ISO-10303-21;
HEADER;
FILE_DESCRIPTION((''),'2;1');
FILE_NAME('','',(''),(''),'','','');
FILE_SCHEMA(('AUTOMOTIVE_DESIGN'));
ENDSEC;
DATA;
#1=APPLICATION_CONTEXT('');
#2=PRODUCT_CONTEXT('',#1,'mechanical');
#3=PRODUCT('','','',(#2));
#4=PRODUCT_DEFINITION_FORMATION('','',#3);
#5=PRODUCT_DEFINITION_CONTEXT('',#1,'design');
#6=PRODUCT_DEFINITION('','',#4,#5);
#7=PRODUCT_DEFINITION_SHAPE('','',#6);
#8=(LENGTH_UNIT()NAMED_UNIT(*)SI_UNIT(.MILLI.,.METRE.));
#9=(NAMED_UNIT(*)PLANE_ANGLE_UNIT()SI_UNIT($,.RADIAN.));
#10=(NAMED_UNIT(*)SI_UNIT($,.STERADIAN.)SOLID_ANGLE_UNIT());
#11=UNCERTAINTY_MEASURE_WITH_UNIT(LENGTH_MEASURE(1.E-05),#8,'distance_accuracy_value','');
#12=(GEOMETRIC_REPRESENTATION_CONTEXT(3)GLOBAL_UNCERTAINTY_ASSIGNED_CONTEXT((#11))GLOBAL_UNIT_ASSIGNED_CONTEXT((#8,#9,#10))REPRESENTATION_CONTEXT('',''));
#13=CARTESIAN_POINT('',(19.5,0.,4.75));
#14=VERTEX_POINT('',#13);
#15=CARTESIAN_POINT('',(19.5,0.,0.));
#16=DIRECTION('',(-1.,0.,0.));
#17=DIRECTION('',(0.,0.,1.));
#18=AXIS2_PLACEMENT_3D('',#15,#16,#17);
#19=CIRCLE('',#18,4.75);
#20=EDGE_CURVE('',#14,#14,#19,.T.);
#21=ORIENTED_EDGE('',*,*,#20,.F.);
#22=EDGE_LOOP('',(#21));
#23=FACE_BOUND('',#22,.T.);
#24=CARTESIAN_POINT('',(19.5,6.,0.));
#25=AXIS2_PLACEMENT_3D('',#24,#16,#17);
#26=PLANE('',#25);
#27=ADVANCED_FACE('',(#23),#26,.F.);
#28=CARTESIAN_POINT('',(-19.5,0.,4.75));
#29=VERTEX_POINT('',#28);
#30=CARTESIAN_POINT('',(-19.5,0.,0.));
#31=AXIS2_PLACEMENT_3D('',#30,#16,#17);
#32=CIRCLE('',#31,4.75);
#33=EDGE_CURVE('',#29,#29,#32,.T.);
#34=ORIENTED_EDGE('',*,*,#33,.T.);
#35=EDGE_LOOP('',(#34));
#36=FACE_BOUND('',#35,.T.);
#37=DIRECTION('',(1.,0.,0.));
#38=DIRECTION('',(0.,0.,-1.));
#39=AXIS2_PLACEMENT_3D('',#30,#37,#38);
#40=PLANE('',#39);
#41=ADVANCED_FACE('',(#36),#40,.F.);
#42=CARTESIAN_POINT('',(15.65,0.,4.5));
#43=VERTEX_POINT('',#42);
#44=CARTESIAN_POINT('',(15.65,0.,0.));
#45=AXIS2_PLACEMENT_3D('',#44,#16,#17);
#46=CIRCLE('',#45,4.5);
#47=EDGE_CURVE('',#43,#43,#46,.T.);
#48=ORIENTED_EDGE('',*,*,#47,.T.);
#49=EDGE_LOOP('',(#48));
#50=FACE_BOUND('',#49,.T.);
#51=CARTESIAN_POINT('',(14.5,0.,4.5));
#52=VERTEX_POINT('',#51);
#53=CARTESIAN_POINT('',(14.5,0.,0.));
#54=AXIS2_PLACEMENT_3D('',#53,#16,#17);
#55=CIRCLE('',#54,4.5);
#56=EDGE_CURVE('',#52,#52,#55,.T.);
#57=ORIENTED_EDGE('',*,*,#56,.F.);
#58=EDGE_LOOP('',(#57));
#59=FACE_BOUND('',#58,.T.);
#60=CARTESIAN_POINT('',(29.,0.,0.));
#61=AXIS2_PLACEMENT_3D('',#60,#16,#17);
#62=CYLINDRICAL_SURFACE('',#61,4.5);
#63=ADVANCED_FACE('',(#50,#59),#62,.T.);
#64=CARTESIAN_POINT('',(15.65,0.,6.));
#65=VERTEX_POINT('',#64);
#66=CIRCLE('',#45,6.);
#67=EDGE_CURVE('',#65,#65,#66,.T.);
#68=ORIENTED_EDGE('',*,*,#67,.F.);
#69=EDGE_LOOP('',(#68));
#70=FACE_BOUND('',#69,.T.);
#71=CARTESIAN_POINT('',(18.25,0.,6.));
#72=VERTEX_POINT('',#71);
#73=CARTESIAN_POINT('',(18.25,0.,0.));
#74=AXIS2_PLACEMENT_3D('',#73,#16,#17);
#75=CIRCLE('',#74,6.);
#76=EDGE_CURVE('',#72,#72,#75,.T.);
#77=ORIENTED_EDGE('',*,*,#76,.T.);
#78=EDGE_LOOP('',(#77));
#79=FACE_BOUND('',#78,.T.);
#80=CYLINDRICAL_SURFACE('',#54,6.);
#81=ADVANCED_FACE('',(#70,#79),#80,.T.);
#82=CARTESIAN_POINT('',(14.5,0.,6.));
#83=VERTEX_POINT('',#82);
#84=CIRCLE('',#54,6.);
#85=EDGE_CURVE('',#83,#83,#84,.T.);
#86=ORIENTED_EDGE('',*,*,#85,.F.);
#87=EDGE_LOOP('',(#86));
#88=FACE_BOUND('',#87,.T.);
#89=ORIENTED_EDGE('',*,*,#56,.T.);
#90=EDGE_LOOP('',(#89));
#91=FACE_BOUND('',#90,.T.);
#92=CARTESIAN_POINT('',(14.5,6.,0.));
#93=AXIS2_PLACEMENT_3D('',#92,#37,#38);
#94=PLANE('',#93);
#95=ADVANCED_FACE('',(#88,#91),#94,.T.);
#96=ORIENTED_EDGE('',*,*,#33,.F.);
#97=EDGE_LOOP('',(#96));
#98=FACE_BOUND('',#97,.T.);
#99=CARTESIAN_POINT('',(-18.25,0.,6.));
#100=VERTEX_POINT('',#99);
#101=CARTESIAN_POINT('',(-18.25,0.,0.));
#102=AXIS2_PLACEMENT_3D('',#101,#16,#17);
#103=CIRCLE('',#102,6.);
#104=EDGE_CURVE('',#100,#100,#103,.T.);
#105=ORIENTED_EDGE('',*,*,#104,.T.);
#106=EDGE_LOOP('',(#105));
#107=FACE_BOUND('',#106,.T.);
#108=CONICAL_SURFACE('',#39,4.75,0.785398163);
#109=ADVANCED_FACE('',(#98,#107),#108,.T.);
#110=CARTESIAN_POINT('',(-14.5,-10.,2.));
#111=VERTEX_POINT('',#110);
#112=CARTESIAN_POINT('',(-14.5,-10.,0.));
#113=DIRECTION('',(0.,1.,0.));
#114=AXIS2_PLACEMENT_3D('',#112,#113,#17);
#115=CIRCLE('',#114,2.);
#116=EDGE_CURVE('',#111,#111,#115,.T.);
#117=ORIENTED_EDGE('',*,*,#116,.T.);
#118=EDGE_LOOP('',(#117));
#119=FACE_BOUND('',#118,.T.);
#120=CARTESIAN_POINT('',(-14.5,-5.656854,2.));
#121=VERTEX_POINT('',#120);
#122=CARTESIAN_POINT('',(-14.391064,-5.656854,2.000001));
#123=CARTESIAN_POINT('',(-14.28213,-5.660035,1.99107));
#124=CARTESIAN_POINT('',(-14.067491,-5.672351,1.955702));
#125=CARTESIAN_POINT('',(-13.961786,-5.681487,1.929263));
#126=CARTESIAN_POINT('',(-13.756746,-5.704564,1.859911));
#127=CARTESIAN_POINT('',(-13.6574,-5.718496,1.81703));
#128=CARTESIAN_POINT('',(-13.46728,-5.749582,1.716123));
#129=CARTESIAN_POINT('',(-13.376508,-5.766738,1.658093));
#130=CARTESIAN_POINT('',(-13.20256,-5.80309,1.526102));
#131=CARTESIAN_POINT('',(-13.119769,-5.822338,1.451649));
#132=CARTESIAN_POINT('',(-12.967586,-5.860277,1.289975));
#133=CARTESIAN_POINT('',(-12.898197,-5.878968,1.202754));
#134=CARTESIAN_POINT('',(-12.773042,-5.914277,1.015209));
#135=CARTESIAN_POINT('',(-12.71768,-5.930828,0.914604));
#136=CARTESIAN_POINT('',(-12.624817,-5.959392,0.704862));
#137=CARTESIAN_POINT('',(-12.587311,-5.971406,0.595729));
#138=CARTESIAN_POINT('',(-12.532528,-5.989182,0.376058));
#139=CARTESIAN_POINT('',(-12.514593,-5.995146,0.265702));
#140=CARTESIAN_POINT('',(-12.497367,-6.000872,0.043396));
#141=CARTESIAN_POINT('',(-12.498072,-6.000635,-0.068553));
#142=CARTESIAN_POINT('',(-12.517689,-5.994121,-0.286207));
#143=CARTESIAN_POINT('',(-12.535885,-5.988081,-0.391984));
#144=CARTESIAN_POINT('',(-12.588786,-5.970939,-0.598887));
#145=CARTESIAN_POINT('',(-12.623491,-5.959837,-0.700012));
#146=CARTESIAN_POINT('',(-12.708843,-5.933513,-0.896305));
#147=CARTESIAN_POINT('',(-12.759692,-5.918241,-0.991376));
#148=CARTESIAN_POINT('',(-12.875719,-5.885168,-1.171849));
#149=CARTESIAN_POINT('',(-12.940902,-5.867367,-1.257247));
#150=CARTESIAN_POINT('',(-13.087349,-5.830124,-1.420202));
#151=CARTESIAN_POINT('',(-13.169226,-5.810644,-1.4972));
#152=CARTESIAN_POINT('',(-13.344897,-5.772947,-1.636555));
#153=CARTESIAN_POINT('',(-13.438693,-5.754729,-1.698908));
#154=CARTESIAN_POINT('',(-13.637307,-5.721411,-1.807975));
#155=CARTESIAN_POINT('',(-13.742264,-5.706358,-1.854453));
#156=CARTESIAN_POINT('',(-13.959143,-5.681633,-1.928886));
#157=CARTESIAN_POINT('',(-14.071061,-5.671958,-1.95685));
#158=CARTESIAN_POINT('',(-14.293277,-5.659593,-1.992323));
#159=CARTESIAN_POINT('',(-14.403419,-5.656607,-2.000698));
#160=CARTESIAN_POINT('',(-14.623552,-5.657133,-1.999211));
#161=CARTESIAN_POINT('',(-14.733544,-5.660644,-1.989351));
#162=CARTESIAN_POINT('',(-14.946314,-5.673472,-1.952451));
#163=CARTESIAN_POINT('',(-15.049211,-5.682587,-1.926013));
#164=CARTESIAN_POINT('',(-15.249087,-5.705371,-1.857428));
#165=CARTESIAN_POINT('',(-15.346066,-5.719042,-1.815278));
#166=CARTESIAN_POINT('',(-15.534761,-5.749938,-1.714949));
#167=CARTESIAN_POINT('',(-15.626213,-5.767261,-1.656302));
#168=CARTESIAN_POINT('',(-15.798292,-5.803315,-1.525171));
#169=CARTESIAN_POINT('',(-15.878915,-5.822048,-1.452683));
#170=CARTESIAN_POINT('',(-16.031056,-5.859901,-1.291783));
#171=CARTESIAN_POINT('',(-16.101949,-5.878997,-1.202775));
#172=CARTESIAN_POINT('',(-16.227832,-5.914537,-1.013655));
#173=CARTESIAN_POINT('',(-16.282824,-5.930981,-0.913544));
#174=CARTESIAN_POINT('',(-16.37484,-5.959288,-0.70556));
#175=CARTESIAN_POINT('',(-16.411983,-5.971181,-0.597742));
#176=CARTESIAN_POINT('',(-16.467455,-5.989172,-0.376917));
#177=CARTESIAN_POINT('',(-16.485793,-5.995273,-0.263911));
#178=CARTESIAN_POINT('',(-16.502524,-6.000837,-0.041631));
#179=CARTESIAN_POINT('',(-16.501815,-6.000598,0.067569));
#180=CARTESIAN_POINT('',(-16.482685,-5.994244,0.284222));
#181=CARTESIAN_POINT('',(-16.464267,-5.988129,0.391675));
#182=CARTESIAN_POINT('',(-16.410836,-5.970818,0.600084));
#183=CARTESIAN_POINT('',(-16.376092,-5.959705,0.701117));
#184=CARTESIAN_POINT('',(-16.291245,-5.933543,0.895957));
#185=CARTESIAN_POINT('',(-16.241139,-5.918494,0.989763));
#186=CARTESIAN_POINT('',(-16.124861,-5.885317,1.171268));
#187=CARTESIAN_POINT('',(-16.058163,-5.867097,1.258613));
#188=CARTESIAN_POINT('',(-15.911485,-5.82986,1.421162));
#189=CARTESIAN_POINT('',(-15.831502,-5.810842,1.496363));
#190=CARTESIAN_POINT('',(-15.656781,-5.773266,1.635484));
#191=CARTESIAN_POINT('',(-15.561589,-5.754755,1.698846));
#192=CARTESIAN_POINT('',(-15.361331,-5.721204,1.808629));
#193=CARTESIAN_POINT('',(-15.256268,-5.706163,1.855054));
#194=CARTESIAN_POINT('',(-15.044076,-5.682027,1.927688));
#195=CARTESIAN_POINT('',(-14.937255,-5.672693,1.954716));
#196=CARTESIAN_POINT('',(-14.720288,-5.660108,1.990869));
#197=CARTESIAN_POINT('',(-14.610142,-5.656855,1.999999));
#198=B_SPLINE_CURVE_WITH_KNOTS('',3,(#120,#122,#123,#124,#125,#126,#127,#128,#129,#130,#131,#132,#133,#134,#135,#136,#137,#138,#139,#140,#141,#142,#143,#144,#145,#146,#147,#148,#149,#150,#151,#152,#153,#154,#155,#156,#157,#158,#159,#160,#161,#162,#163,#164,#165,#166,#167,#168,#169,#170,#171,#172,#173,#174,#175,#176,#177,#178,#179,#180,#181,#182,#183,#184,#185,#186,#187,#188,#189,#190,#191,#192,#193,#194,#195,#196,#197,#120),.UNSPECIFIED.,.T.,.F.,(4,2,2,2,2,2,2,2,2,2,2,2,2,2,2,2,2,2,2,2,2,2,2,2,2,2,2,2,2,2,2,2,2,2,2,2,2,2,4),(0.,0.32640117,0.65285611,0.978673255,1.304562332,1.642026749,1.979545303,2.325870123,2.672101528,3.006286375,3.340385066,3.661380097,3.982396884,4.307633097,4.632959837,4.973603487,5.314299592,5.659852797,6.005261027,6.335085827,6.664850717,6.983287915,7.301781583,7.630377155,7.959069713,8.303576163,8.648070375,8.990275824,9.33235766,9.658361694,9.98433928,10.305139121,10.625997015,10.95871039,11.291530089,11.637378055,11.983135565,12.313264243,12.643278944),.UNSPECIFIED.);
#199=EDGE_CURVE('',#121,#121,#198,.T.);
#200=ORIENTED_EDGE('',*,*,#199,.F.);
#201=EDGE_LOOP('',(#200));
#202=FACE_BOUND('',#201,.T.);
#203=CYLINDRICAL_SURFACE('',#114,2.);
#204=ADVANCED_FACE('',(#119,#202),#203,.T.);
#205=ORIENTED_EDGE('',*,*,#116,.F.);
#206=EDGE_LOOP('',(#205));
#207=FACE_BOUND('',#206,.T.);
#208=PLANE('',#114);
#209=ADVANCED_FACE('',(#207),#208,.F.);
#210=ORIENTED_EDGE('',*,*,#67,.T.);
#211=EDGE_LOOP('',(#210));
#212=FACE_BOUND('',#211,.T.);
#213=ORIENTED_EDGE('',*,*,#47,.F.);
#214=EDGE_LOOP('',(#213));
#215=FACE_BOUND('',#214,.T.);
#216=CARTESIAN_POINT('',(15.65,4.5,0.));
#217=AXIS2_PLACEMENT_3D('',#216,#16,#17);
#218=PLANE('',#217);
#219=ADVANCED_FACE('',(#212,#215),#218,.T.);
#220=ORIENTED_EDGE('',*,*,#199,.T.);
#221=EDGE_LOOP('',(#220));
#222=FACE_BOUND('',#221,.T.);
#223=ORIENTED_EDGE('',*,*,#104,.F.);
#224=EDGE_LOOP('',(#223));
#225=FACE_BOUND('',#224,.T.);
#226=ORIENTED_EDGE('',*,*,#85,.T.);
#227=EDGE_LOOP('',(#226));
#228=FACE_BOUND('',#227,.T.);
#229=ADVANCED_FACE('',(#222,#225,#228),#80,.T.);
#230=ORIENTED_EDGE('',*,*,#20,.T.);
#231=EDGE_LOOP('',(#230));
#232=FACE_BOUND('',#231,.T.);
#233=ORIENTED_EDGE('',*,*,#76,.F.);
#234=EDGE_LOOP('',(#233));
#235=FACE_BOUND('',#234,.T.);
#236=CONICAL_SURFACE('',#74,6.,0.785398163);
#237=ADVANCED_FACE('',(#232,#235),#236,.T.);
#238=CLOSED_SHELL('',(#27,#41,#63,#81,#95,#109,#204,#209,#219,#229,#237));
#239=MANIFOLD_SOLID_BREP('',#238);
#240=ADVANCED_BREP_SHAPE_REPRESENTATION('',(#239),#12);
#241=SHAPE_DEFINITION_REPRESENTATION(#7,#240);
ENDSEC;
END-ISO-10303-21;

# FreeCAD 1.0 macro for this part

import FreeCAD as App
import Part
import Sketcher

V = App.Vector

doc = App.newDocument("Part")
body = doc.addObject("PartDesign::Body", "Body")

# Sketch on XY plane
sketch1 = doc.addObject("Sketcher::SketchObject", "Sketch")
body.addObject(sketch1)
sketch1.AttachmentSupport = (doc.XY_Plane, [""])
sketch1.MapMode = "FlatFace"
sketch1.addGeometry([
    Part.LineSegment(V(-19.5, 6, 0), V(-19.5, 0, 0)),
    Part.LineSegment(V(-19.5, 0, 0), V(14.5, 0, 0)),
    Part.LineSegment(V(14.5, 0, 0), V(14.5, 6, 0)),
    Part.LineSegment(V(14.5, 6, 0), V(-19.5, 6, 0)),
], False)
sketch1.addConstraint([
    Sketcher.Constraint("Coincident", 0, 2, 1, 1),
    Sketcher.Constraint("Coincident", 1, 2, 2, 1),
    Sketcher.Constraint("Coincident", 2, 2, 3, 1),
    Sketcher.Constraint("Coincident", 3, 2, 0, 1),
    Sketcher.Constraint("Vertical", 0),
    Sketcher.Constraint("Horizontal", 1),
    Sketcher.Constraint("Vertical", 2),
    Sketcher.Constraint("Horizontal", 3),
    Sketcher.Constraint("PointOnObject", 0, 2, -1),
    Sketcher.Constraint("DistanceX", 1, 1, 1, 2, 34.0),
    Sketcher.Constraint("DistanceY", 0, 2, 0, 1, 6.0),
    Sketcher.Constraint("DistanceX", 0, 2, -1, 1, 19.5),
])
revolution = doc.addObject("PartDesign::Revolution", "Revolution")
body.addObject(revolution)
revolution.Profile = sketch1
revolution.ReferenceAxis = (sketch1, ["H_Axis"])
revolution.Angle = 360

# Sketch on XY plane
sketch2 = doc.addObject("Sketcher::SketchObject", "Sketch001")
body.addObject(sketch2)
sketch2.AttachmentSupport = (doc.XY_Plane, [""])
sketch2.MapMode = "FlatFace"
sketch2.addGeometry([
    Part.LineSegment(V(-19.5, 4.75, 0), V(-18.25, 6, 0)),
    Part.LineSegment(V(-18.25, 6, 0), V(-19.5, 6, 0)),
    Part.LineSegment(V(-19.5, 6, 0), V(-19.5, 4.75, 0)),
], False)
sketch2.addConstraint([
    Sketcher.Constraint("Coincident", 0, 2, 1, 1),
    Sketcher.Constraint("Coincident", 1, 2, 2, 1),
    Sketcher.Constraint("Coincident", 2, 2, 0, 1),
    Sketcher.Constraint("Horizontal", 1),
    Sketcher.Constraint("Vertical", 2),
    Sketcher.Constraint("Equal", 1, 2),
    Sketcher.Constraint("DistanceY", -1, 1, 0, 2, 6.0),
    Sketcher.Constraint("DistanceX", 1, 2, 1, 1, 1.25),
    Sketcher.Constraint("DistanceX", 1, 2, -1, 1, 19.5),
])
groove = doc.addObject("PartDesign::Groove", "Groove")
body.addObject(groove)
groove.Profile = sketch2
groove.ReferenceAxis = (sketch2, ["H_Axis"])
groove.Angle = 360

# Sketch on XZ plane
sketch3 = doc.addObject("Sketcher::SketchObject", "Sketch002")
body.addObject(sketch3)
sketch3.AttachmentSupport = (doc.XZ_Plane, [""])
sketch3.MapMode = "FlatFace"
sketch3.addGeometry(Part.Circle(V(-14.5, 0, 0), V(0, 0, 1), 2), False)
sketch3.addConstraint([
    Sketcher.Constraint("PointOnObject", 0, 3, -1),
    Sketcher.Constraint("Diameter", 0, 4.0),
    Sketcher.Constraint("DistanceX", 0, 3, -1, 1, 14.5),
])
pad1 = doc.addObject("PartDesign::Pad", "Pad")
body.addObject(pad1)
pad1.Profile = sketch3
pad1.Length = 10

# Sketch on XY plane
sketch4 = doc.addObject("Sketcher::SketchObject", "Sketch003")
body.addObject(sketch4)
sketch4.AttachmentSupport = (doc.XY_Plane, [""])
sketch4.MapMode = "FlatFace"
sketch4.addGeometry([
    Part.LineSegment(V(14.5, 6, 0), V(14.5, 0, 0)),
    Part.LineSegment(V(14.5, 0, 0), V(19.5, 0, 0)),
    Part.LineSegment(V(19.5, 0, 0), V(19.5, 6, 0)),
    Part.LineSegment(V(19.5, 6, 0), V(14.5, 6, 0)),
], False)
sketch4.addConstraint([
    Sketcher.Constraint("Coincident", 0, 2, 1, 1),
    Sketcher.Constraint("Coincident", 1, 2, 2, 1),
    Sketcher.Constraint("Coincident", 2, 2, 3, 1),
    Sketcher.Constraint("Coincident", 3, 2, 0, 1),
    Sketcher.Constraint("Vertical", 0),
    Sketcher.Constraint("Horizontal", 1),
    Sketcher.Constraint("Vertical", 2),
    Sketcher.Constraint("Horizontal", 3),
    Sketcher.Constraint("PointOnObject", 0, 2, -1),
    Sketcher.Constraint("DistanceX", 1, 1, 1, 2, 5.0),
    Sketcher.Constraint("DistanceY", 0, 2, 0, 1, 6.0),
    Sketcher.Constraint("DistanceX", -1, 1, 0, 2, 14.5),
])
revolution2 = doc.addObject("PartDesign::Revolution", "Revolution001")
body.addObject(revolution2)
revolution2.Profile = sketch4
revolution2.ReferenceAxis = (sketch4, ["H_Axis"])
revolution2.Angle = 360

# Sketch on XY plane
sketch5 = doc.addObject("Sketcher::SketchObject", "Sketch004")
body.addObject(sketch5)
sketch5.AttachmentSupport = (doc.XY_Plane, [""])
sketch5.MapMode = "FlatFace"
sketch5.addGeometry([
    Part.LineSegment(V(14.5, 6, 0), V(14.5, 4.5, 0)),
    Part.LineSegment(V(14.5, 4.5, 0), V(15.65, 4.5, 0)),
    Part.LineSegment(V(15.65, 4.5, 0), V(15.65, 6, 0)),
    Part.LineSegment(V(15.65, 6, 0), V(14.5, 6, 0)),
], False)
sketch5.addConstraint([
    Sketcher.Constraint("Coincident", 0, 2, 1, 1),
    Sketcher.Constraint("Coincident", 1, 2, 2, 1),
    Sketcher.Constraint("Coincident", 2, 2, 3, 1),
    Sketcher.Constraint("Coincident", 3, 2, 0, 1),
    Sketcher.Constraint("Vertical", 0),
    Sketcher.Constraint("Horizontal", 1),
    Sketcher.Constraint("Vertical", 2),
    Sketcher.Constraint("Horizontal", 3),
    Sketcher.Constraint("DistanceY", 0, 2, 0, 1, 1.5),
    Sketcher.Constraint("DistanceY", -1, 1, 2, 2, 6.0),
    Sketcher.Constraint("DistanceX", 1, 1, 1, 2, 1.15),
    Sketcher.Constraint("DistanceX", -1, 1, 0, 2, 14.5),
])
groove2 = doc.addObject("PartDesign::Groove", "Groove001")
body.addObject(groove2)
groove2.Profile = sketch5
groove2.ReferenceAxis = (sketch5, ["H_Axis"])
groove2.Angle = 360

# Sketch on XY plane
sketch6 = doc.addObject("Sketcher::SketchObject", "Sketch005")
body.addObject(sketch6)
sketch6.AttachmentSupport = (doc.XY_Plane, [""])
sketch6.MapMode = "FlatFace"
sketch6.addGeometry([
    Part.LineSegment(V(18.25, 6, 0), V(19.5, 4.75, 0)),
    Part.LineSegment(V(19.5, 4.75, 0), V(19.5, 6, 0)),
    Part.LineSegment(V(19.5, 6, 0), V(18.25, 6, 0)),
], False)
sketch6.addConstraint([
    Sketcher.Constraint("Coincident", 0, 2, 1, 1),
    Sketcher.Constraint("Coincident", 1, 2, 2, 1),
    Sketcher.Constraint("Coincident", 2, 2, 0, 1),
    Sketcher.Constraint("Vertical", 1),
    Sketcher.Constraint("Horizontal", 2),
    Sketcher.Constraint("Equal", 2, 1),
    Sketcher.Constraint("DistanceY", -1, 1, 1, 2, 6.0),
    Sketcher.Constraint("DistanceX", 2, 2, 2, 1, 1.25),
    Sketcher.Constraint("DistanceX", -1, 1, 0, 2, 19.5),
])
groove3 = doc.addObject("PartDesign::Groove", "Groove002")
body.addObject(groove3)
groove3.Profile = sketch6
groove3.ReferenceAxis = (sketch6, ["H_Axis"])
groove3.Angle = 360

doc.recompute()
